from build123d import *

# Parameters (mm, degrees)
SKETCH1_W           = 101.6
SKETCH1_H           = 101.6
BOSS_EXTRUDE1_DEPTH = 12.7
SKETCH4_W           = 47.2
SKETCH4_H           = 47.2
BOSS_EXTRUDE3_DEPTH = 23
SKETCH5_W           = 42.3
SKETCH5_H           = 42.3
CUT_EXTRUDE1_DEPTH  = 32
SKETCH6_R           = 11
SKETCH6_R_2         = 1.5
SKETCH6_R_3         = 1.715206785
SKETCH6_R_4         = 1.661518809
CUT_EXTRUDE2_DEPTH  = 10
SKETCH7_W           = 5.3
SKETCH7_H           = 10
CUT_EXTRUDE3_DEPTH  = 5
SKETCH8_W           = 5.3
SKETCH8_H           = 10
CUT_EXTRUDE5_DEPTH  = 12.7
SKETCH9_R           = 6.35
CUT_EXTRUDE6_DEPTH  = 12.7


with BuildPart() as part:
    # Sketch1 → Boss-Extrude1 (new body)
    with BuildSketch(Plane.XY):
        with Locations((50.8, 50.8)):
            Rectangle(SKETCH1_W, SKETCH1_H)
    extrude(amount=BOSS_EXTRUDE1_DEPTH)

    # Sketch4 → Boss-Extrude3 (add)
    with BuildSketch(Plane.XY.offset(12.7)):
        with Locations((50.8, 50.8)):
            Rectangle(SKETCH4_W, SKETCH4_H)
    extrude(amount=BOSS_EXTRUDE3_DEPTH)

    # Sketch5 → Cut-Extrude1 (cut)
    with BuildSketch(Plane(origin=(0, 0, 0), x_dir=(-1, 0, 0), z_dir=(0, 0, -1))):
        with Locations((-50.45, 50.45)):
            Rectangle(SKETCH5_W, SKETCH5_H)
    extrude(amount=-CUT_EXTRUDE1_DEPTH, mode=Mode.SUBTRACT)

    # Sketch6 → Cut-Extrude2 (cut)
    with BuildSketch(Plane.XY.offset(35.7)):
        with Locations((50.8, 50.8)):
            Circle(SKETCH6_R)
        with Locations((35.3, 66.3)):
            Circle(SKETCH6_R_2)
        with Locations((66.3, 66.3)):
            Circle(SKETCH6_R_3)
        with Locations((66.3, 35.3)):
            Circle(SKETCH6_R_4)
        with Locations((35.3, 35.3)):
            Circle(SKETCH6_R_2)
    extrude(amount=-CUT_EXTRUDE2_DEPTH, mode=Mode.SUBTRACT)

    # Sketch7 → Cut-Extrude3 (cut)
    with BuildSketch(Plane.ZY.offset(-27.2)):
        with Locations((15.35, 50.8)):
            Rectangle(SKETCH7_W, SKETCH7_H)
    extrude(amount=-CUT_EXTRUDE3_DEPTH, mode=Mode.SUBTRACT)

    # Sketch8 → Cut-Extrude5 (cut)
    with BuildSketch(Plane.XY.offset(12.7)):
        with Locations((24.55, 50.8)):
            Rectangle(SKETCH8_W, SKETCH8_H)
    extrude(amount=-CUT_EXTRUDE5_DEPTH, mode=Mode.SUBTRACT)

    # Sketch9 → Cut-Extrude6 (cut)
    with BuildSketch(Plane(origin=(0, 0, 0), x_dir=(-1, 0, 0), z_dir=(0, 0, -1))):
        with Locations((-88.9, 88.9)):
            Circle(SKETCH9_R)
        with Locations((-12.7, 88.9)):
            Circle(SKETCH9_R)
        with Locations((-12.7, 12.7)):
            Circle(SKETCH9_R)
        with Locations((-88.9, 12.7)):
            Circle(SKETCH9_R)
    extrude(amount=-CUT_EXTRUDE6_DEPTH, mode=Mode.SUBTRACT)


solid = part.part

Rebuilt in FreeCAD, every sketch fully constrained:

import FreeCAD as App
import Part
import Sketcher

doc = App.newDocument("Part")
body = doc.addObject("PartDesign::Body", "Body")

# Sketch on XY plane
sketch1 = body.newObject("Sketcher::SketchObject", "Sketch")
sketch1.AttachmentSupport = (doc.getObject("XY_Plane"), [""])
sketch1.MapMode = "FlatFace"
sketch1.addGeometry([
    Part.LineSegment(App.Vector(0, 102, 0), App.Vector(0, 0, 0)),
    Part.LineSegment(App.Vector(0, 0, 0), App.Vector(102, 0, 0)),
    Part.LineSegment(App.Vector(102, 0, 0), App.Vector(102, 102, 0)),
    Part.LineSegment(App.Vector(102, 102, 0), App.Vector(0, 102, 0)),
], False)
sketch1.addConstraint([
    Sketcher.Constraint("Coincident", 0, 2, 1, 1),
    Sketcher.Constraint("Coincident", 1, 2, 2, 1),
    Sketcher.Constraint("Coincident", 2, 2, 3, 1),
    Sketcher.Constraint("Coincident", 3, 2, 0, 1),
    Sketcher.Constraint("Vertical", 0),
    Sketcher.Constraint("Horizontal", 1),
    Sketcher.Constraint("Vertical", 2),
    Sketcher.Constraint("Horizontal", 3),
    Sketcher.Constraint("Coincident", 0, 2, -1, 1),
    Sketcher.Constraint("Equal", 3, 0),
    Sketcher.Constraint("DistanceX", 1, 1, 1, 2, 101.6),
])
pad1 = body.newObject("PartDesign::Pad", "Pad")
pad1.Profile = sketch1
pad1.Length = 12.7

# Sketch on XY plane
sketch2 = body.newObject("Sketcher::SketchObject", "Sketch001")
sketch2.AttachmentSupport = (doc.getObject("XY_Plane"), [""])
sketch2.MapMode = "FlatFace"
sketch2.AttachmentOffset = App.Placement(App.Vector(0, 0, 12.7), App.Rotation())
sketch2.addGeometry([
    Part.LineSegment(App.Vector(27, 74, 0), App.Vector(27, 27, 0)),
    Part.LineSegment(App.Vector(27, 27, 0), App.Vector(74, 27, 0)),
    Part.LineSegment(App.Vector(74, 27, 0), App.Vector(74, 74, 0)),
    Part.LineSegment(App.Vector(74, 74, 0), App.Vector(27, 74, 0)),
], False)
sketch2.addConstraint([
    Sketcher.Constraint("Coincident", 0, 2, 1, 1),
    Sketcher.Constraint("Coincident", 1, 2, 2, 1),
    Sketcher.Constraint("Coincident", 2, 2, 3, 1),
    Sketcher.Constraint("Coincident", 3, 2, 0, 1),
    Sketcher.Constraint("Vertical", 0),
    Sketcher.Constraint("Horizontal", 1),
    Sketcher.Constraint("Vertical", 2),
    Sketcher.Constraint("Horizontal", 3),
    Sketcher.Constraint("Equal", 3, 0),
    Sketcher.Constraint("DistanceX", 1, 1, 1, 2, 47.2),
    Sketcher.Constraint("DistanceX", -1, 1, 0, 2, 27.2),
    Sketcher.Constraint("DistanceY", -1, 1, 0, 2, 27.2),
])
pad2 = body.newObject("PartDesign::Pad", "Pad001")
pad2.Profile = sketch2
pad2.Length = 23

# Sketch on XY plane
sketch3 = body.newObject("Sketcher::SketchObject", "Sketch002")
sketch3.AttachmentSupport = (doc.getObject("XY_Plane"), [""])
sketch3.MapMode = "FlatFace"
sketch3.addGeometry([
    Part.LineSegment(App.Vector(72, 72, 0), App.Vector(72, 29, 0)),
    Part.LineSegment(App.Vector(72, 29, 0), App.Vector(29, 29, 0)),
    Part.LineSegment(App.Vector(29, 29, 0), App.Vector(29, 72, 0)),
    Part.LineSegment(App.Vector(29, 72, 0), App.Vector(72, 72, 0)),
], False)
sketch3.addConstraint([
    Sketcher.Constraint("Coincident", 0, 2, 1, 1),
    Sketcher.Constraint("Coincident", 1, 2, 2, 1),
    Sketcher.Constraint("Coincident", 2, 2, 3, 1),
    Sketcher.Constraint("Coincident", 3, 2, 0, 1),
    Sketcher.Constraint("Vertical", 0),
    Sketcher.Constraint("Horizontal", 1),
    Sketcher.Constraint("Vertical", 2),
    Sketcher.Constraint("Horizontal", 3),
    Sketcher.Constraint("Equal", 3, 0),
    Sketcher.Constraint("DistanceX", 1, 2, 1, 1, 42.3),
    Sketcher.Constraint("DistanceX", -1, 1, 0, 2, 71.6),
    Sketcher.Constraint("DistanceY", -1, 1, 0, 2, 29.3),
])
pocket1 = body.newObject("PartDesign::Pocket", "Pocket")
pocket1.Profile = sketch3
pocket1.Length = 32
pocket1.Reversed = True

# Sketch on XY plane
sketch4 = body.newObject("Sketcher::SketchObject", "Sketch003")
sketch4.AttachmentSupport = (doc.getObject("XY_Plane"), [""])
sketch4.MapMode = "FlatFace"
sketch4.AttachmentOffset = App.Placement(App.Vector(0, 0, 35.7), App.Rotation())
sketch4.addGeometry([
    Part.Circle(App.Vector(50.8, 50.8, 0), App.Vector(0, 0, 1), 11),  # 0
    Part.Circle(App.Vector(35.3, 66.3, 0), App.Vector(0, 0, 1), 1.5),  # 1
    Part.Circle(App.Vector(66.3, 66.3, 0), App.Vector(0, 0, 1), 1.7),  # 2
    Part.Circle(App.Vector(66.3, 35.3, 0), App.Vector(0, 0, 1), 1.7),  # 3
    Part.Circle(App.Vector(35.3, 35.3, 0), App.Vector(0, 0, 1), 1.5),  # 4
], False)
sketch4.addConstraint([
    Sketcher.Constraint("Equal", 1, 4),
    Sketcher.Constraint("Horizontal", 1, 3, 2, 3),
    Sketcher.Constraint("Horizontal", 3, 3, 4, 3),
    Sketcher.Constraint("Vertical", 2, 3, 3, 3),
    Sketcher.Constraint("Vertical", 1, 3, 4, 3),
    Sketcher.Constraint("Diameter", 0, 22.0),
    Sketcher.Constraint("Diameter", 1, 3.0),
    Sketcher.Constraint("DistanceX", 1, 3, 2, 3, 31.0),
    Sketcher.Constraint("DistanceY", 3, 3, 2, 3, 31.0),
    Sketcher.Constraint("DistanceX", -1, 1, 0, 3, 50.8),
    Sketcher.Constraint("DistanceY", -1, 1, 0, 3, 50.8),
    Sketcher.Constraint("DistanceX", -1, 1, 1, 3, 35.3),
    Sketcher.Constraint("DistanceY", -1, 1, 1, 3, 66.3),
    Sketcher.Constraint("Diameter", 2, 3.430414),
    Sketcher.Constraint("Diameter", 3, 3.323038),
])
pocket2 = body.newObject("PartDesign::Pocket", "Pocket001")
pocket2.Profile = sketch4
pocket2.Length = 10

# Sketch on YZ plane
sketch5 = body.newObject("Sketcher::SketchObject", "Sketch004")
sketch5.AttachmentSupport = (doc.getObject("YZ_Plane"), [""])
sketch5.MapMode = "FlatFace"
sketch5.AttachmentOffset = App.Placement(App.Vector(0, 0, 27.2), App.Rotation())
sketch5.addGeometry([
    Part.LineSegment(App.Vector(56, 13, 0), App.Vector(46, 13, 0)),
    Part.LineSegment(App.Vector(46, 13, 0), App.Vector(46, 18, 0)),
    Part.LineSegment(App.Vector(46, 18, 0), App.Vector(56, 18, 0)),
    Part.LineSegment(App.Vector(56, 18, 0), App.Vector(56, 13, 0)),
], False)
sketch5.addConstraint([
    Sketcher.Constraint("Coincident", 0, 2, 1, 1),
    Sketcher.Constraint("Coincident", 1, 2, 2, 1),
    Sketcher.Constraint("Coincident", 2, 2, 3, 1),
    Sketcher.Constraint("Coincident", 3, 2, 0, 1),
    Sketcher.Constraint("Horizontal", 0),
    Sketcher.Constraint("Vertical", 1),
    Sketcher.Constraint("Horizontal", 2),
    Sketcher.Constraint("Vertical", 3),
    Sketcher.Constraint("DistanceX", 0, 2, 0, 1, 10.0),
    Sketcher.Constraint("DistanceY", 1, 1, 1, 2, 5.3),
    Sketcher.Constraint("DistanceY", -1, 1, 1, 2, 18.0),
    Sketcher.Constraint("DistanceX", -1, 1, 0, 2, 45.8),
])
pocket3 = body.newObject("PartDesign::Pocket", "Pocket002")
pocket3.Profile = sketch5
pocket3.Length = 5
pocket3.Reversed = True

# Sketch on XY plane
sketch6 = body.newObject("Sketcher::SketchObject", "Sketch005")
sketch6.AttachmentSupport = (doc.getObject("XY_Plane"), [""])
sketch6.MapMode = "FlatFace"
sketch6.AttachmentOffset = App.Placement(App.Vector(0, 0, 12.7), App.Rotation())
sketch6.addGeometry([
    Part.LineSegment(App.Vector(22, 56, 0), App.Vector(22, 46, 0)),
    Part.LineSegment(App.Vector(22, 46, 0), App.Vector(27, 46, 0)),
    Part.LineSegment(App.Vector(27, 46, 0), App.Vector(27, 56, 0)),
    Part.LineSegment(App.Vector(27, 56, 0), App.Vector(22, 56, 0)),
], False)
sketch6.addConstraint([
    Sketcher.Constraint("Coincident", 0, 2, 1, 1),
    Sketcher.Constraint("Coincident", 1, 2, 2, 1),
    Sketcher.Constraint("Coincident", 2, 2, 3, 1),
    Sketcher.Constraint("Coincident", 3, 2, 0, 1),
    Sketcher.Constraint("Vertical", 0),
    Sketcher.Constraint("Horizontal", 1),
    Sketcher.Constraint("Vertical", 2),
    Sketcher.Constraint("Horizontal", 3),
    Sketcher.Constraint("DistanceY", 0, 2, 0, 1, 10.0),
    Sketcher.Constraint("DistanceX", 1, 1, 1, 2, 5.3),
    Sketcher.Constraint("DistanceX", -1, 1, 0, 2, 21.9),
    Sketcher.Constraint("DistanceY", -1, 1, 0, 2, 45.8),
])
pocket4 = body.newObject("PartDesign::Pocket", "Pocket003")
pocket4.Profile = sketch6
pocket4.Length = 12.7

# Sketch on XY plane
sketch7 = body.newObject("Sketcher::SketchObject", "Sketch006")
sketch7.AttachmentSupport = (doc.getObject("XY_Plane"), [""])
sketch7.MapMode = "FlatFace"
sketch7.addGeometry([
    Part.Circle(App.Vector(89, 89, 0), App.Vector(0, 0, 1), 6),
    Part.Circle(App.Vector(13, 89, 0), App.Vector(0, 0, 1), 6),
    Part.Circle(App.Vector(13, 13, 0), App.Vector(0, 0, 1), 6),
    Part.Circle(App.Vector(89, 13, 0), App.Vector(0, 0, 1), 6),
], False)
sketch7.addConstraint([
    Sketcher.Constraint("Equal", 0, 1),
    Sketcher.Constraint("Equal", 1, 2),
    Sketcher.Constraint("Equal", 2, 3),
    Sketcher.Constraint("Horizontal", 0, 3, 1, 3),
    Sketcher.Constraint("Horizontal", 2, 3, 3, 3),
    Sketcher.Constraint("Vertical", 1, 3, 2, 3),
    Sketcher.Constraint("Vertical", 0, 3, 3, 3),
    Sketcher.Constraint("Diameter", 0, 12.7),
    Sketcher.Constraint("DistanceX", -1, 1, 0, 3, 88.9),
    Sketcher.Constraint("DistanceY", -1, 1, 0, 3, 88.9),
    Sketcher.Constraint("DistanceX", -1, 1, 1, 3, 12.7),
    Sketcher.Constraint("DistanceY", -1, 1, 2, 3, 12.7),
])
pocket5 = body.newObject("PartDesign::Pocket", "Pocket004")
pocket5.Profile = sketch7
pocket5.Length = 12.7
pocket5.Reversed = True

doc.recompute()
